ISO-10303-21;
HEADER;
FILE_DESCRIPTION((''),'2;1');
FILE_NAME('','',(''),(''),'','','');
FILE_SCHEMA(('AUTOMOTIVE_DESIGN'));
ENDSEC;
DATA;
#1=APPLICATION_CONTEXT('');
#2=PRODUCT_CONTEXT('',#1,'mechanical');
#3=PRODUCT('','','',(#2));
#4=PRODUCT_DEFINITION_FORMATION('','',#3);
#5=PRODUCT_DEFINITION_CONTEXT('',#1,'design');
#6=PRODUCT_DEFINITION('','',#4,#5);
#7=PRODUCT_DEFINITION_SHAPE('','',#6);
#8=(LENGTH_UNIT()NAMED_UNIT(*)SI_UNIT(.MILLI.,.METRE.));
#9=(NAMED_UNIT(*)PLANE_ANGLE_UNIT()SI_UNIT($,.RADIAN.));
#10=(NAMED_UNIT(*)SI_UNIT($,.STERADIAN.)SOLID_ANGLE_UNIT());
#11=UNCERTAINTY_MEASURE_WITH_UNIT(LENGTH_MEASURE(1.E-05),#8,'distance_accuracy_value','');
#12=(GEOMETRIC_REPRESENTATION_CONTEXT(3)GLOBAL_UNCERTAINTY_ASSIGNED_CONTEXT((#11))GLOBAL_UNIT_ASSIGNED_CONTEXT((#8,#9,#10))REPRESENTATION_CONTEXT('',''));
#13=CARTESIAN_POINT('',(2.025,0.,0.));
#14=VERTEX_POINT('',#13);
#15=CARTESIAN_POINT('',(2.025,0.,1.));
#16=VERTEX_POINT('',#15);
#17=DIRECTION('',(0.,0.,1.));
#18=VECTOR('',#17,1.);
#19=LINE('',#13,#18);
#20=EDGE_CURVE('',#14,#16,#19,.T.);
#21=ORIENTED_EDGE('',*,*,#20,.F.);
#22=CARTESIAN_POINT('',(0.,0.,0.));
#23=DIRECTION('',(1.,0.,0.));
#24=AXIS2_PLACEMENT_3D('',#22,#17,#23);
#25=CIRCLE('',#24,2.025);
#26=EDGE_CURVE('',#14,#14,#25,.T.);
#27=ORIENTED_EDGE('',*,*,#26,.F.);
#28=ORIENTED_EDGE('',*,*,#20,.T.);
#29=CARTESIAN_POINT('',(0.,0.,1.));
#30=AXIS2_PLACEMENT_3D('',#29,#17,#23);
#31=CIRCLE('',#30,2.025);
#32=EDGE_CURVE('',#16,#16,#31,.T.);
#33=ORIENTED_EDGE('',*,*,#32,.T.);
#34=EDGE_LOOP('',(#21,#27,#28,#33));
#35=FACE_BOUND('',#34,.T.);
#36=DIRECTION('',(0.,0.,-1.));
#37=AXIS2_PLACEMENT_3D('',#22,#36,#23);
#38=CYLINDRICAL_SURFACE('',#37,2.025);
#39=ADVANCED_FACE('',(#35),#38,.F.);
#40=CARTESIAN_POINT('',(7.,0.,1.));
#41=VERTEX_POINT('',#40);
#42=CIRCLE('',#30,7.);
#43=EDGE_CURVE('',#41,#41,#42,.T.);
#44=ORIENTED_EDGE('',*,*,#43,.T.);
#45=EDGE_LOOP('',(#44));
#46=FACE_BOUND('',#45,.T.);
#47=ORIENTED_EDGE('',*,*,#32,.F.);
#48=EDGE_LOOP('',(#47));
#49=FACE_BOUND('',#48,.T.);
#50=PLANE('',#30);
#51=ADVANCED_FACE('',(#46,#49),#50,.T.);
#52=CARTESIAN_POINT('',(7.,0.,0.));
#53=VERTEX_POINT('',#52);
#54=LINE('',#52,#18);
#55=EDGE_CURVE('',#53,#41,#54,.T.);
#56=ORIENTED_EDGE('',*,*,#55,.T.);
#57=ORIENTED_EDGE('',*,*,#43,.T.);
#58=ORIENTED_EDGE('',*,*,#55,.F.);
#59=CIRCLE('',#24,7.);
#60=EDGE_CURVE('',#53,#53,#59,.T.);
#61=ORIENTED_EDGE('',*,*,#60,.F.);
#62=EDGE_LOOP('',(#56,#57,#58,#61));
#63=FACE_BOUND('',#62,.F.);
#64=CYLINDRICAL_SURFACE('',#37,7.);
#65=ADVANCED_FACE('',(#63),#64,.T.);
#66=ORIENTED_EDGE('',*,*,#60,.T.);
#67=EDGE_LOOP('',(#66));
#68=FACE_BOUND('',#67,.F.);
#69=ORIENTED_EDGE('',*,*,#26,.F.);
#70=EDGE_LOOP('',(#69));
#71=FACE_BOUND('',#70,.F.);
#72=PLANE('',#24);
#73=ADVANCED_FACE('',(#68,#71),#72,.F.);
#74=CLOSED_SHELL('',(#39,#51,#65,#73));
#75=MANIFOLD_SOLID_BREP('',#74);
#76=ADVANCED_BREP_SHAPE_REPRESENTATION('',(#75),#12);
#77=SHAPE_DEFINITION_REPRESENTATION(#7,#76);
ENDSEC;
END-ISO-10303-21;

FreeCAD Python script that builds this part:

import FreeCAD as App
import Part
import Sketcher

V = App.Vector

doc = App.newDocument("Part")
body = doc.addObject("PartDesign::Body", "Body")

sketch1 = body.newObject("Sketcher::SketchObject", "Sketch")
sketch1.AttachmentSupport = (doc.getObject("XY_Plane"), [""])
sketch1.MapMode = "FlatFace"
sketch1.addGeometry([
    Part.Circle(V(0, 0, 0), V(0, 0, 1), 7),
    Part.Circle(V(0, 0, 0), V(0, 0, 1), 2.025),
], False)
sketch1.addConstraint([
    Sketcher.Constraint("Coincident", 0, 3, -1, 1),
    Sketcher.Constraint("Coincident", 1, 3, -1, 1),
    Sketcher.Constraint("Diameter", 0, 14.0),
    Sketcher.Constraint("Diameter", 1, 4.05),
])
pad1 = body.newObject("PartDesign::Pad", "Pad")
pad1.Profile = sketch1
pad1.Length = 1

doc.recompute()
